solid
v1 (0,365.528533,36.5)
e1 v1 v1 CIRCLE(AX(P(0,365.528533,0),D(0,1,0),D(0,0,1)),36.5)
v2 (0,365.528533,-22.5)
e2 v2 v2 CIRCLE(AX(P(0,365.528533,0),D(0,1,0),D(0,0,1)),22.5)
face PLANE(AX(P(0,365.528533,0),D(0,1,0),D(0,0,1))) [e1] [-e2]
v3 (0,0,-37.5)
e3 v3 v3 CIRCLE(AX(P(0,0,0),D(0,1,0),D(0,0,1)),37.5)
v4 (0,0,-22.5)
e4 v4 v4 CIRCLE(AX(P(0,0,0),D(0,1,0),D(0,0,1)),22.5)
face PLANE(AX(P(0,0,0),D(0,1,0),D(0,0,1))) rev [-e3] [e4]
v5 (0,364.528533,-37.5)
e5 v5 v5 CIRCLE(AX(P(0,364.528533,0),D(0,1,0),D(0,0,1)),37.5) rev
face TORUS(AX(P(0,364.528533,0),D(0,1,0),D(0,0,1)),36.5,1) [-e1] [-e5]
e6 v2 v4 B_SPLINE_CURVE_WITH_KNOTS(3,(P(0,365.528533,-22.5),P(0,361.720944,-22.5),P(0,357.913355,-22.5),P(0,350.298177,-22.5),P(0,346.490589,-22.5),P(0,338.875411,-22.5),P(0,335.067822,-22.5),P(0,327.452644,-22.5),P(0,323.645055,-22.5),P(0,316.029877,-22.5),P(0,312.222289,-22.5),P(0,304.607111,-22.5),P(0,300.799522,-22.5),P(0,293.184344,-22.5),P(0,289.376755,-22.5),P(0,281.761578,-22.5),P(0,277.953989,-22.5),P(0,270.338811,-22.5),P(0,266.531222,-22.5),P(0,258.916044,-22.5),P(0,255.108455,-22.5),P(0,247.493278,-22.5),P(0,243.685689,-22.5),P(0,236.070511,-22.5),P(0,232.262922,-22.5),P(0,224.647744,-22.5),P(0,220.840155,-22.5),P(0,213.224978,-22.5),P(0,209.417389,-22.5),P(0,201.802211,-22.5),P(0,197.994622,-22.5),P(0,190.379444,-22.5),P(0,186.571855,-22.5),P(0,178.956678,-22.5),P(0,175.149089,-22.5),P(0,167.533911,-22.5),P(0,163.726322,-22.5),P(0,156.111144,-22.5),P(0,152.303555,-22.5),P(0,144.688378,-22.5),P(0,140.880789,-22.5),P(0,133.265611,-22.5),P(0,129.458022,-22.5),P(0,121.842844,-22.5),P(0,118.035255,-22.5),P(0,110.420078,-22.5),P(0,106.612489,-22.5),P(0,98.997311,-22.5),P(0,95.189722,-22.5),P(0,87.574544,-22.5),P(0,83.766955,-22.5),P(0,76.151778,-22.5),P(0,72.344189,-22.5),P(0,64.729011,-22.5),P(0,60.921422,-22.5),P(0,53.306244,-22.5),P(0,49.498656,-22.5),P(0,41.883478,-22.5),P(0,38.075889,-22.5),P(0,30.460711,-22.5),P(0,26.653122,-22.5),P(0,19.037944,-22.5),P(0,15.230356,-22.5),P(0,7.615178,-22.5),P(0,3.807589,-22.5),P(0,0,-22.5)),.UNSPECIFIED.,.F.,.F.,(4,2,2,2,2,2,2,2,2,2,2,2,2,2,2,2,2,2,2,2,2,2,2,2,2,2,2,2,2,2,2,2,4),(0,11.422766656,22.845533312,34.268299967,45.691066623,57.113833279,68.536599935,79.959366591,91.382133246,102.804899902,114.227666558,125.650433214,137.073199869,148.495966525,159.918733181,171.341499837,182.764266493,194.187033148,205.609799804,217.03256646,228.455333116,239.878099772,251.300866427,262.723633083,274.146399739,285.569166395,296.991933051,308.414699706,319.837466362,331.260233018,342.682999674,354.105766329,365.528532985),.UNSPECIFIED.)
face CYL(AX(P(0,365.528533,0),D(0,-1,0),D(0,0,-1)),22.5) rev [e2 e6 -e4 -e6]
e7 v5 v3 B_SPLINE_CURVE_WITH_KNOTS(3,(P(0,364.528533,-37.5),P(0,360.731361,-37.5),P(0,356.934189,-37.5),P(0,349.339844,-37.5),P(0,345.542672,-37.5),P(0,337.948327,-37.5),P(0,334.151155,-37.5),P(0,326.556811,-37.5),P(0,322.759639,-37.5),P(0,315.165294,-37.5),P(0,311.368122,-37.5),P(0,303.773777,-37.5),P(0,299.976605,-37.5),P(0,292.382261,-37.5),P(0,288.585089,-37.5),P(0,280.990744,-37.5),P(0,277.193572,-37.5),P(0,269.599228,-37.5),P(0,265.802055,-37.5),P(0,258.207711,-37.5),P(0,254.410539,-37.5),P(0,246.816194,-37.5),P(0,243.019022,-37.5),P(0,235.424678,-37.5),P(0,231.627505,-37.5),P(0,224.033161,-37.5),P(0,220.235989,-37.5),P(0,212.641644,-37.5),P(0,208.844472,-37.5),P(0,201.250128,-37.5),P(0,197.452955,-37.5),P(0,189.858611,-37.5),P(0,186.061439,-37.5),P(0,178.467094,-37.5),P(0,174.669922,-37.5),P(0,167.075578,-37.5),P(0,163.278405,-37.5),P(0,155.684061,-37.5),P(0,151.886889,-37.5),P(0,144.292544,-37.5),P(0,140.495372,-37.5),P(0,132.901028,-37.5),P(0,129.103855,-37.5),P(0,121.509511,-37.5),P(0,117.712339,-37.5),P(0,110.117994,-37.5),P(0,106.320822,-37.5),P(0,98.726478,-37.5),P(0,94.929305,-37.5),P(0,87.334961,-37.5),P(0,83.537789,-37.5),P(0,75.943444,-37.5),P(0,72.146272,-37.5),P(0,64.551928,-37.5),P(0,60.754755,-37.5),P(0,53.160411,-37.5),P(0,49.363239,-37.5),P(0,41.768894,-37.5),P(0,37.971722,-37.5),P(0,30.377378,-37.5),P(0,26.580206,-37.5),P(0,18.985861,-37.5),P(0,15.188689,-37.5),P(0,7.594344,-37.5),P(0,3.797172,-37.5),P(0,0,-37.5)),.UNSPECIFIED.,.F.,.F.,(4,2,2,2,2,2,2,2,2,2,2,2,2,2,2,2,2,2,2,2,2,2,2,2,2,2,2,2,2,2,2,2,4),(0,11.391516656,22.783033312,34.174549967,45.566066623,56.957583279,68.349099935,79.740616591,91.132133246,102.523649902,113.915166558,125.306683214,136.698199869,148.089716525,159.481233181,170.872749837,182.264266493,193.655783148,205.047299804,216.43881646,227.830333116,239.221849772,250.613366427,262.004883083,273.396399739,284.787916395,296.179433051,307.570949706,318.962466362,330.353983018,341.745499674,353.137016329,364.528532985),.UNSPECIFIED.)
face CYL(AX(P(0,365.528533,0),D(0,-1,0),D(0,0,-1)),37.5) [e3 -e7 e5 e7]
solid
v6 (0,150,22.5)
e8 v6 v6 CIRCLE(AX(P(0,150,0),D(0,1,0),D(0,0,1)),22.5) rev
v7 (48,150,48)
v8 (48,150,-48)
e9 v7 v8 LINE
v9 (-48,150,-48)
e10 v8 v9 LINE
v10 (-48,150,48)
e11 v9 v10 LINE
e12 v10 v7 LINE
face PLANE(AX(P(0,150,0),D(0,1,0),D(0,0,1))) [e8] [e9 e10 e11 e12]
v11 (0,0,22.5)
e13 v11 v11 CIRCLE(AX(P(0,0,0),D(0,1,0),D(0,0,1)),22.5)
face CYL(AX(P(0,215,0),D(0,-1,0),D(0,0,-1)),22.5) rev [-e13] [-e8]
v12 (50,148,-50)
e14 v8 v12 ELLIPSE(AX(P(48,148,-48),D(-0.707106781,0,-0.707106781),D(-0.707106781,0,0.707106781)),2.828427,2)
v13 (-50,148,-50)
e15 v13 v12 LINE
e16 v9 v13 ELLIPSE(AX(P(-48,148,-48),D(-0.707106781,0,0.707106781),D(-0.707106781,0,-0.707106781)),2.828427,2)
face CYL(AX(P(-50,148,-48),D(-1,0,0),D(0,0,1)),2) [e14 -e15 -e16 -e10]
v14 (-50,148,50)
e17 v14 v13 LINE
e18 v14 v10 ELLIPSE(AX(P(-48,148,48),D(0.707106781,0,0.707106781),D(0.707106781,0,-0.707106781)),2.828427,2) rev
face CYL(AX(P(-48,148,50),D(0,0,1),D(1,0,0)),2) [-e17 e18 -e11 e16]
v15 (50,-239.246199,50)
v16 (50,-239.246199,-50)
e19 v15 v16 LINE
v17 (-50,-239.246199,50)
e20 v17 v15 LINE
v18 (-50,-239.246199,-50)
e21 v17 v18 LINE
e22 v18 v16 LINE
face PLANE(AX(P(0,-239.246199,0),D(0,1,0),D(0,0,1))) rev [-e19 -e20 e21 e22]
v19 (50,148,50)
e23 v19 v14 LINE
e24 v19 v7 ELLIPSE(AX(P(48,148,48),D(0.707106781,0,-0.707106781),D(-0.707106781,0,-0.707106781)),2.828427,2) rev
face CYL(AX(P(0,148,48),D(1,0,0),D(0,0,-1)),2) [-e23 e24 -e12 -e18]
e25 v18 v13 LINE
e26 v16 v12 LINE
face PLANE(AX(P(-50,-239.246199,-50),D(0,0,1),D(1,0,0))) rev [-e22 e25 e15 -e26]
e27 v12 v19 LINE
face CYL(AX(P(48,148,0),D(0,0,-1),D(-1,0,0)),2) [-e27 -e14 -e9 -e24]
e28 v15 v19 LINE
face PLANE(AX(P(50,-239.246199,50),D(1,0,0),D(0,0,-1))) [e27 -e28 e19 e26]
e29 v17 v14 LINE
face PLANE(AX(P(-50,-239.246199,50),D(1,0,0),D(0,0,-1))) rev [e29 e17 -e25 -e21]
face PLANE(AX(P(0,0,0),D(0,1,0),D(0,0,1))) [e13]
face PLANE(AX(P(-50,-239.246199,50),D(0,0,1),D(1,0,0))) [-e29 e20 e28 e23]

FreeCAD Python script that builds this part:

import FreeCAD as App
import Part
import Sketcher

V = App.Vector


def edges_at(feature, points):
    """Names of the edges that pass closest to the given points."""
    edges = feature.Shape.Edges
    near = lambda p: min(range(len(edges)), key=lambda i: edges[i].distToShape(Part.Vertex(*p))[0])
    return sorted({f"Edge{near(p) + 1}" for p in points})

doc = App.newDocument("Part")
body = doc.addObject("PartDesign::Body", "Body")

# Sketch on XZ plane
sketch1 = body.newObject("Sketcher::SketchObject", "Sketch")
sketch1.AttachmentSupport = (doc.getObject("XZ_Plane"), [""])
sketch1.MapMode = "FlatFace"
sketch1.addGeometry(Part.LineSegment(V(-50, -50, 0), V(-50, 50, 0)), False)
sketch1.addGeometry(Part.LineSegment(V(-50, 50, 0), V(50, 50, 0)), False)
sketch1.addGeometry(Part.LineSegment(V(50, 50, 0), V(50, -50, 0)), False)
sketch1.addGeometry(Part.LineSegment(V(50, -50, 0), V(-50, -50, 0)), False)
sketch1.addConstraint(Sketcher.Constraint("Coincident", 0, 2, 1, 1))
sketch1.addConstraint(Sketcher.Constraint("Coincident", 1, 2, 2, 1))
sketch1.addConstraint(Sketcher.Constraint("Coincident", 2, 2, 3, 1))
sketch1.addConstraint(Sketcher.Constraint("Coincident", 3, 2, 0, 1))
sketch1.addConstraint(Sketcher.Constraint("Vertical", 0))
sketch1.addConstraint(Sketcher.Constraint("Horizontal", 1))
sketch1.addConstraint(Sketcher.Constraint("Vertical", 2))
sketch1.addConstraint(Sketcher.Constraint("Horizontal", 3))
sketch1.addConstraint(Sketcher.Constraint("Symmetric", 0, 2, 2, 2, -1, 1))
sketch1.addConstraint(Sketcher.Constraint("Equal", 3, 0))
sketch1.addConstraint(Sketcher.Constraint("DistanceX", 1, 1, 1, 2, 100.0))
pad1 = body.newObject("PartDesign::Pad", "Pad")
pad1.Profile = sketch1
pad1.Type = "TwoLengths"
pad1.Length = 150
pad1.Length2 = 239.246199
pad1.Reversed = True

# Sketch on XZ plane
sketch2 = body.newObject("Sketcher::SketchObject", "Sketch001")
sketch2.AttachmentSupport = (doc.getObject("XZ_Plane"), [""])
sketch2.MapMode = "FlatFace"
sketch2.addGeometry(Part.Circle(V(0, 0, 0), V(0, 0, 1), 22), False)
sketch2.addConstraint(Sketcher.Constraint("Coincident", 0, 3, -1, 1))
sketch2.addConstraint(Sketcher.Constraint("Diameter", 0, 45.0))
pocket1 = body.newObject("PartDesign::Pocket", "Pocket")
pocket1.Profile = sketch2
pocket1.Length = 215
doc.recompute()

fillet = body.newObject("PartDesign::Fillet", "Fillet")
fillet.Base = (pocket1, edges_at(pocket1, [
    (0, 150, -50),
    (-50, 150, 0),
    (0, 150, 50),
    (50, 150, 0),
]))
fillet.Radius = 2
body2 = doc.addObject("PartDesign::Body", "Body001")

# Sketch on XZ plane
sketch3 = body2.newObject("Sketcher::SketchObject", "Sketch002")
sketch3.AttachmentSupport = (doc.getObject("XZ_Plane001"), [""])
sketch3.MapMode = "FlatFace"
sketch3.addGeometry(Part.Circle(V(0, 0, 0), V(0, 0, 1), 38), False)
sketch3.addGeometry(Part.Circle(V(0, 0, 0), V(0, 0, 1), 22), False)
sketch3.addConstraint(Sketcher.Constraint("Coincident", 0, 3, -1, 1))
sketch3.addConstraint(Sketcher.Constraint("Coincident", 1, 3, -1, 1))
sketch3.addConstraint(Sketcher.Constraint("Diameter", 0, 75.0))
sketch3.addConstraint(Sketcher.Constraint("Diameter", 1, 45.0))
pad2 = body2.newObject("PartDesign::Pad", "Pad001")
pad2.Profile = sketch3
pad2.Length = 365.528533
pad2.Reversed = True
doc.recompute()

fillet2 = body2.newObject("PartDesign::Fillet", "Fillet001")
fillet2.Base = (pad2, edges_at(pad2, [(0, 365.529, 37.5)]))
fillet2.Radius = 1

doc.recompute()
